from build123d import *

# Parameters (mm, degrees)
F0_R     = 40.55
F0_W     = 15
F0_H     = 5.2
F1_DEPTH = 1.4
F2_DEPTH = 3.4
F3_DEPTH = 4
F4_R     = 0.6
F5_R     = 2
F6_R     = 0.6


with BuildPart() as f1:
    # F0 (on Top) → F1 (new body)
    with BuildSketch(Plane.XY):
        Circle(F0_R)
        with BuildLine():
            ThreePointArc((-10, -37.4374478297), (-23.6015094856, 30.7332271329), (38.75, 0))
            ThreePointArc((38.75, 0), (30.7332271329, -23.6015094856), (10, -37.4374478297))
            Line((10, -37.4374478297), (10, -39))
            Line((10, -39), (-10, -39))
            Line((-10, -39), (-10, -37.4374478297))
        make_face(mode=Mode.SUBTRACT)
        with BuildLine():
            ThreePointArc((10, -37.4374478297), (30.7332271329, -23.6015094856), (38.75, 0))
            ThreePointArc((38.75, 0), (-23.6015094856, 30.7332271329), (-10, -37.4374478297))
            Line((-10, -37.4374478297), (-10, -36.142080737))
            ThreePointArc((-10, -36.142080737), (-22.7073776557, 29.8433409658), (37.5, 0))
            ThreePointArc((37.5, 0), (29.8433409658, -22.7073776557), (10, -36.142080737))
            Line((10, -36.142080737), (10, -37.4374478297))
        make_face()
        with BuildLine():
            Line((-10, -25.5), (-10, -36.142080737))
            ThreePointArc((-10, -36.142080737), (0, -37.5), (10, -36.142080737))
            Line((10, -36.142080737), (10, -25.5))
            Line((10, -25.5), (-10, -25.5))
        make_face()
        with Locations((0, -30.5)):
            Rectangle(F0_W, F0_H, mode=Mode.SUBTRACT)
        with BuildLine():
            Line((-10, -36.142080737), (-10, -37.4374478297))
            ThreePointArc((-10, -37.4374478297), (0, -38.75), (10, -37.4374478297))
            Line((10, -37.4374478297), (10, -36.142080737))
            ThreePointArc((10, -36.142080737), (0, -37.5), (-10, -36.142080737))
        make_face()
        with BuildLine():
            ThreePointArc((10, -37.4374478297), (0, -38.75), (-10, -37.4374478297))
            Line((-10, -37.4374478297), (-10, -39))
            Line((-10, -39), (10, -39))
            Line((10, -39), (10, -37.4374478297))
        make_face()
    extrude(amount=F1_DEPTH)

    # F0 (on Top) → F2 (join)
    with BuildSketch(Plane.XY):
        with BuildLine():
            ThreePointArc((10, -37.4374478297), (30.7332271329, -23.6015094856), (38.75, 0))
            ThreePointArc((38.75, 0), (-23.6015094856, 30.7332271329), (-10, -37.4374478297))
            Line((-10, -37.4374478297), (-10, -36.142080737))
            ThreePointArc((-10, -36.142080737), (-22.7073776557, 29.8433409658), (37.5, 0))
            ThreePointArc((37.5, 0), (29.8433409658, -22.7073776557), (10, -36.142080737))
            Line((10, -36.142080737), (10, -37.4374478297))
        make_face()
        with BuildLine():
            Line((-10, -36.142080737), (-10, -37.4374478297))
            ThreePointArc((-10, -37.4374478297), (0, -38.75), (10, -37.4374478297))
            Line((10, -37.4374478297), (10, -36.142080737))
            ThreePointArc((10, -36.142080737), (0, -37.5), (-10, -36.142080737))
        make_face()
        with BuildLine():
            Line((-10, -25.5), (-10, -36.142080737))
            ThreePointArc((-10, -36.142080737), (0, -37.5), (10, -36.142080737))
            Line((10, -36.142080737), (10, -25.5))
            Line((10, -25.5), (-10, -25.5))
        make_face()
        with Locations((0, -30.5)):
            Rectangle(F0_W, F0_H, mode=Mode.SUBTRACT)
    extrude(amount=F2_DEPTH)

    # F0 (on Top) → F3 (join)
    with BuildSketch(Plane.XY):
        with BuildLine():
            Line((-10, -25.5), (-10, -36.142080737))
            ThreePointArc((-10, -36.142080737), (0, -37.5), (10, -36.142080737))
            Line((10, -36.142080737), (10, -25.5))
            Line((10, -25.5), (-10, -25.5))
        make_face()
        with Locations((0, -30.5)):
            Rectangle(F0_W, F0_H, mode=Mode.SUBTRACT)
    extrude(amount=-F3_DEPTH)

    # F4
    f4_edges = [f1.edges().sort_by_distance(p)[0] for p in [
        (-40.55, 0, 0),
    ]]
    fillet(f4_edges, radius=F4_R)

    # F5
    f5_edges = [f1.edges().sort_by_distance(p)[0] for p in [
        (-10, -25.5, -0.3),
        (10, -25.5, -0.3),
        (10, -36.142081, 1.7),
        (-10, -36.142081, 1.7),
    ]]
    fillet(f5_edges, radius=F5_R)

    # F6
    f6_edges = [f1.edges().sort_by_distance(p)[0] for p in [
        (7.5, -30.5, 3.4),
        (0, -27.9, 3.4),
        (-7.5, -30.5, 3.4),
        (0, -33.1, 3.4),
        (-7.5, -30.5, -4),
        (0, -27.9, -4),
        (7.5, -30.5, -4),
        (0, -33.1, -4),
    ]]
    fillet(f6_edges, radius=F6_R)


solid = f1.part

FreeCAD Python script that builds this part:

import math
import FreeCAD as App
import Part
import Sketcher


def edges_at(feature, points):
    """Names of the edges that pass closest to the given points."""
    edges = feature.Shape.Edges
    near = lambda p: min(range(len(edges)), key=lambda i: edges[i].distToShape(Part.Vertex(*p))[0])
    return sorted({f"Edge{near(p) + 1}" for p in points})

doc = App.newDocument("Part")
body = doc.addObject("PartDesign::Body", "Body")

# Sketch on XY plane
sketch1 = body.newObject("Sketcher::SketchObject", "Sketch")
sketch1.AttachmentSupport = (doc.getObject("XY_Plane"), [""])
sketch1.MapMode = "FlatFace"
sketch1.addGeometry(Part.Circle(App.Vector(0, 0, 0), App.Vector(0, 0, 1), 40.55), False)
sketch1.addGeometry(Part.ArcOfCircle(Part.Circle(App.Vector(0, 0, 0), App.Vector(0, 0, 1), 37.5), math.radians(-74.53399), math.radians(254.53399)), False)
sketch1.addGeometry(Part.LineSegment(App.Vector(10, -36.142081, 0), App.Vector(10, -25.5, 0)), False)
sketch1.addGeometry(Part.LineSegment(App.Vector(10, -25.5, 0), App.Vector(-10, -25.5, 0)), False)
sketch1.addGeometry(Part.LineSegment(App.Vector(-10, -25.5, 0), App.Vector(-10, -36.142081, 0)), False)
sketch1.addGeometry(Part.LineSegment(App.Vector(-7.5, -33.1, 0), App.Vector(-7.5, -27.9, 0)), False)
sketch1.addGeometry(Part.LineSegment(App.Vector(-7.5, -27.9, 0), App.Vector(7.5, -27.9, 0)), False)
sketch1.addGeometry(Part.LineSegment(App.Vector(7.5, -27.9, 0), App.Vector(7.5, -33.1, 0)), False)
sketch1.addGeometry(Part.LineSegment(App.Vector(7.5, -33.1, 0), App.Vector(-7.5, -33.1, 0)), False)
sketch1.addConstraint(Sketcher.Constraint("Coincident", 1, 1, 2, 1))
sketch1.addConstraint(Sketcher.Constraint("Coincident", 2, 2, 3, 1))
sketch1.addConstraint(Sketcher.Constraint("Coincident", 3, 2, 4, 1))
sketch1.addConstraint(Sketcher.Constraint("Coincident", 4, 2, 1, 2))
sketch1.addConstraint(Sketcher.Constraint("Coincident", 5, 2, 6, 1))
sketch1.addConstraint(Sketcher.Constraint("Coincident", 6, 2, 7, 1))
sketch1.addConstraint(Sketcher.Constraint("Coincident", 7, 2, 8, 1))
sketch1.addConstraint(Sketcher.Constraint("Coincident", 8, 2, 5, 1))
sketch1.addConstraint(Sketcher.Constraint("Vertical", 2))
sketch1.addConstraint(Sketcher.Constraint("Horizontal", 3))
sketch1.addConstraint(Sketcher.Constraint("Vertical", 4))
sketch1.addConstraint(Sketcher.Constraint("Vertical", 5))
sketch1.addConstraint(Sketcher.Constraint("Horizontal", 6))
sketch1.addConstraint(Sketcher.Constraint("Vertical", 7))
sketch1.addConstraint(Sketcher.Constraint("Horizontal", 8))
sketch1.addConstraint(Sketcher.Constraint("Coincident", 0, 3, -1, 1))
sketch1.addConstraint(Sketcher.Constraint("Coincident", 1, 3, -1, 1))
sketch1.addConstraint(Sketcher.Constraint("Horizontal", 1, 1, 4, 2))
sketch1.addConstraint(Sketcher.Constraint("Diameter", 0, 81.1))
sketch1.addConstraint(Sketcher.Constraint("Radius", 1, 37.5))
sketch1.addConstraint(Sketcher.Constraint("DistanceX", 3, 2, 3, 1, 20.0))
sketch1.addConstraint(Sketcher.Constraint("DistanceX", 6, 1, 6, 2, 15.0))
sketch1.addConstraint(Sketcher.Constraint("DistanceY", 5, 1, 5, 2, 5.2))
sketch1.addConstraint(Sketcher.Constraint("DistanceY", 2, 2, -1, 1, 25.5))
sketch1.addConstraint(Sketcher.Constraint("DistanceX", 5, 2, -1, 1, 7.5))
sketch1.addConstraint(Sketcher.Constraint("DistanceY", 5, 2, -1, 1, 27.9))
pad1 = body.newObject("PartDesign::Pad", "Pad")
pad1.Profile = sketch1
pad1.Length = 1.4

# Sketch on XY plane
sketch2 = body.newObject("Sketcher::SketchObject", "Sketch001")
sketch2.AttachmentSupport = (doc.getObject("XY_Plane"), [""])
sketch2.MapMode = "FlatFace"
sketch2.addGeometry(Part.ArcOfCircle(Part.Circle(App.Vector(0, 0, 0), App.Vector(0, 0, 1), 38.75), math.radians(-75.044752), math.radians(255.044752)), False)
sketch2.addGeometry(Part.ArcOfCircle(Part.Circle(App.Vector(0, 0, 0), App.Vector(0, 0, 1), 38.75), math.radians(-104.955248), math.radians(-75.044752)), False)
sketch2.addGeometry(Part.LineSegment(App.Vector(7.5, -33.1, 0), App.Vector(-7.5, -33.1, 0)), False)
sketch2.addGeometry(Part.LineSegment(App.Vector(-7.5, -33.1, 0), App.Vector(-7.5, -27.9, 0)), False)
sketch2.addGeometry(Part.LineSegment(App.Vector(-7.5, -27.9, 0), App.Vector(7.5, -27.9, 0)), False)
sketch2.addGeometry(Part.LineSegment(App.Vector(7.5, -27.9, 0), App.Vector(7.5, -33.1, 0)), False)
sketch2.addGeometry(Part.ArcOfCircle(Part.Circle(App.Vector(0, 0, 0), App.Vector(0, 0, 1), 37.5), math.radians(-74.53399), math.radians(254.53399)), False)
sketch2.addGeometry(Part.LineSegment(App.Vector(10, -36.142081, 0), App.Vector(10, -25.5, 0)), False)
sketch2.addGeometry(Part.LineSegment(App.Vector(10, -25.5, 0), App.Vector(-10, -25.5, 0)), False)
sketch2.addGeometry(Part.LineSegment(App.Vector(-10, -25.5, 0), App.Vector(-10, -36.142081, 0)), False)
sketch2.addConstraint(Sketcher.Constraint("Tangent", 0, 1, 1, 2))
sketch2.addConstraint(Sketcher.Constraint("Coincident", 1, 1, 0, 2))
sketch2.addConstraint(Sketcher.Constraint("Coincident", 2, 2, 3, 1))
sketch2.addConstraint(Sketcher.Constraint("Coincident", 3, 2, 4, 1))
sketch2.addConstraint(Sketcher.Constraint("Coincident", 4, 2, 5, 1))
sketch2.addConstraint(Sketcher.Constraint("Coincident", 5, 2, 2, 1))
sketch2.addConstraint(Sketcher.Constraint("Coincident", 6, 1, 7, 1))
sketch2.addConstraint(Sketcher.Constraint("Coincident", 7, 2, 8, 1))
sketch2.addConstraint(Sketcher.Constraint("Coincident", 8, 2, 9, 1))
sketch2.addConstraint(Sketcher.Constraint("Coincident", 9, 2, 6, 2))
sketch2.addConstraint(Sketcher.Constraint("Horizontal", 2))
sketch2.addConstraint(Sketcher.Constraint("Vertical", 3))
sketch2.addConstraint(Sketcher.Constraint("Horizontal", 4))
sketch2.addConstraint(Sketcher.Constraint("Vertical", 5))
sketch2.addConstraint(Sketcher.Constraint("Vertical", 7))
sketch2.addConstraint(Sketcher.Constraint("Horizontal", 8))
sketch2.addConstraint(Sketcher.Constraint("Vertical", 9))
sketch2.addConstraint(Sketcher.Constraint("Coincident", 0, 3, -1, 1))
sketch2.addConstraint(Sketcher.Constraint("Coincident", 6, 3, -1, 1))
sketch2.addConstraint(Sketcher.Constraint("Horizontal", 0, 1, 1, 1))
sketch2.addConstraint(Sketcher.Constraint("Horizontal", 6, 1, 9, 2))
sketch2.addConstraint(Sketcher.Constraint("Vertical", 0, 1, 6, 1))
sketch2.addConstraint(Sketcher.Constraint("Radius", 6, 37.5))
sketch2.addConstraint(Sketcher.Constraint("DistanceX", 2, 2, 2, 1, 15.0))
sketch2.addConstraint(Sketcher.Constraint("DistanceX", 8, 2, 8, 1, 20.0))
sketch2.addConstraint(Sketcher.Constraint("Radius", 0, 38.75))
sketch2.addConstraint(Sketcher.Constraint("DistanceY", 3, 1, 3, 2, 5.2))
sketch2.addConstraint(Sketcher.Constraint("DistanceX", 2, 2, -1, 1, 7.5))
sketch2.addConstraint(Sketcher.Constraint("DistanceY", 2, 2, -1, 1, 33.1))
sketch2.addConstraint(Sketcher.Constraint("DistanceY", 7, 2, -1, 1, 25.5))
pad2 = body.newObject("PartDesign::Pad", "Pad001")
pad2.Profile = sketch2
pad2.Length = 3.4

# Sketch on XY plane
sketch3 = body.newObject("Sketcher::SketchObject", "Sketch002")
sketch3.AttachmentSupport = (doc.getObject("XY_Plane"), [""])
sketch3.MapMode = "FlatFace"
sketch3.addGeometry(Part.LineSegment(App.Vector(-10, -25.5, 0), App.Vector(-10, -36.142081, 0)), False)
sketch3.addGeometry(Part.ArcOfCircle(Part.Circle(App.Vector(0, 0, 0), App.Vector(0, 0, 1), 37.5), math.radians(-105.46601), math.radians(-74.53399)), False)
sketch3.addGeometry(Part.LineSegment(App.Vector(10, -36.142081, 0), App.Vector(10, -25.5, 0)), False)
sketch3.addGeometry(Part.LineSegment(App.Vector(10, -25.5, 0), App.Vector(-10, -25.5, 0)), False)
sketch3.addGeometry(Part.LineSegment(App.Vector(7.5, -33.1, 0), App.Vector(-7.5, -33.1, 0)), False)
sketch3.addGeometry(Part.LineSegment(App.Vector(-7.5, -33.1, 0), App.Vector(-7.5, -27.9, 0)), False)
sketch3.addGeometry(Part.LineSegment(App.Vector(-7.5, -27.9, 0), App.Vector(7.5, -27.9, 0)), False)
sketch3.addGeometry(Part.LineSegment(App.Vector(7.5, -27.9, 0), App.Vector(7.5, -33.1, 0)), False)
sketch3.addConstraint(Sketcher.Constraint("Coincident", 0, 2, 1, 1))
sketch3.addConstraint(Sketcher.Constraint("Coincident", 1, 2, 2, 1))
sketch3.addConstraint(Sketcher.Constraint("Coincident", 2, 2, 3, 1))
sketch3.addConstraint(Sketcher.Constraint("Coincident", 3, 2, 0, 1))
sketch3.addConstraint(Sketcher.Constraint("Coincident", 4, 2, 5, 1))
sketch3.addConstraint(Sketcher.Constraint("Coincident", 5, 2, 6, 1))
sketch3.addConstraint(Sketcher.Constraint("Coincident", 6, 2, 7, 1))
sketch3.addConstraint(Sketcher.Constraint("Coincident", 7, 2, 4, 1))
sketch3.addConstraint(Sketcher.Constraint("Vertical", 0))
sketch3.addConstraint(Sketcher.Constraint("Vertical", 2))
sketch3.addConstraint(Sketcher.Constraint("Horizontal", 3))
sketch3.addConstraint(Sketcher.Constraint("Horizontal", 4))
sketch3.addConstraint(Sketcher.Constraint("Vertical", 5))
sketch3.addConstraint(Sketcher.Constraint("Horizontal", 6))
sketch3.addConstraint(Sketcher.Constraint("Vertical", 7))
sketch3.addConstraint(Sketcher.Constraint("Coincident", 1, 3, -1, 1))
sketch3.addConstraint(Sketcher.Constraint("Horizontal", 0, 2, 1, 2))
sketch3.addConstraint(Sketcher.Constraint("Radius", 1, 37.5))
sketch3.addConstraint(Sketcher.Constraint("DistanceX", 3, 2, 3, 1, 20.0))
sketch3.addConstraint(Sketcher.Constraint("DistanceX", 4, 2, 4, 1, 15.0))
sketch3.addConstraint(Sketcher.Constraint("DistanceY", 5, 1, 5, 2, 5.2))
sketch3.addConstraint(Sketcher.Constraint("DistanceY", 2, 2, -1, 1, 25.5))
sketch3.addConstraint(Sketcher.Constraint("DistanceX", 4, 2, -1, 1, 7.5))
sketch3.addConstraint(Sketcher.Constraint("DistanceY", 4, 2, -1, 1, 33.1))
pad3 = body.newObject("PartDesign::Pad", "Pad002")
pad3.Profile = sketch3
pad3.Length = 4
pad3.Reversed = True
doc.recompute()

fillet = body.newObject("PartDesign::Fillet", "Fillet")
fillet.Base = (pad3, edges_at(pad3, [(-40.55, 0, 0)]))
fillet.Radius = 0.6
doc.recompute()

fillet2 = body.newObject("PartDesign::Fillet", "Fillet001")
fillet2.Base = (fillet, edges_at(fillet, [
    (-10, -25.5, -0.3),
    (10, -25.5, -0.3),
    (10, -36.142, 1.7),
    (-10, -36.142, 1.7),
]))
fillet2.Radius = 2
doc.recompute()

fillet3 = body.newObject("PartDesign::Fillet", "Fillet002")
fillet3.Base = (fillet2, edges_at(fillet2, [
    (7.5, -30.5, 3.4),
    (0, -27.9, 3.4),
    (-7.5, -30.5, 3.4),
    (0, -33.1, 3.4),
    (-7.5, -30.5, -4),
    (0, -27.9, -4),
    (7.5, -30.5, -4),
    (0, -33.1, -4),
]))
fillet3.Radius = 0.6

doc.recompute()
